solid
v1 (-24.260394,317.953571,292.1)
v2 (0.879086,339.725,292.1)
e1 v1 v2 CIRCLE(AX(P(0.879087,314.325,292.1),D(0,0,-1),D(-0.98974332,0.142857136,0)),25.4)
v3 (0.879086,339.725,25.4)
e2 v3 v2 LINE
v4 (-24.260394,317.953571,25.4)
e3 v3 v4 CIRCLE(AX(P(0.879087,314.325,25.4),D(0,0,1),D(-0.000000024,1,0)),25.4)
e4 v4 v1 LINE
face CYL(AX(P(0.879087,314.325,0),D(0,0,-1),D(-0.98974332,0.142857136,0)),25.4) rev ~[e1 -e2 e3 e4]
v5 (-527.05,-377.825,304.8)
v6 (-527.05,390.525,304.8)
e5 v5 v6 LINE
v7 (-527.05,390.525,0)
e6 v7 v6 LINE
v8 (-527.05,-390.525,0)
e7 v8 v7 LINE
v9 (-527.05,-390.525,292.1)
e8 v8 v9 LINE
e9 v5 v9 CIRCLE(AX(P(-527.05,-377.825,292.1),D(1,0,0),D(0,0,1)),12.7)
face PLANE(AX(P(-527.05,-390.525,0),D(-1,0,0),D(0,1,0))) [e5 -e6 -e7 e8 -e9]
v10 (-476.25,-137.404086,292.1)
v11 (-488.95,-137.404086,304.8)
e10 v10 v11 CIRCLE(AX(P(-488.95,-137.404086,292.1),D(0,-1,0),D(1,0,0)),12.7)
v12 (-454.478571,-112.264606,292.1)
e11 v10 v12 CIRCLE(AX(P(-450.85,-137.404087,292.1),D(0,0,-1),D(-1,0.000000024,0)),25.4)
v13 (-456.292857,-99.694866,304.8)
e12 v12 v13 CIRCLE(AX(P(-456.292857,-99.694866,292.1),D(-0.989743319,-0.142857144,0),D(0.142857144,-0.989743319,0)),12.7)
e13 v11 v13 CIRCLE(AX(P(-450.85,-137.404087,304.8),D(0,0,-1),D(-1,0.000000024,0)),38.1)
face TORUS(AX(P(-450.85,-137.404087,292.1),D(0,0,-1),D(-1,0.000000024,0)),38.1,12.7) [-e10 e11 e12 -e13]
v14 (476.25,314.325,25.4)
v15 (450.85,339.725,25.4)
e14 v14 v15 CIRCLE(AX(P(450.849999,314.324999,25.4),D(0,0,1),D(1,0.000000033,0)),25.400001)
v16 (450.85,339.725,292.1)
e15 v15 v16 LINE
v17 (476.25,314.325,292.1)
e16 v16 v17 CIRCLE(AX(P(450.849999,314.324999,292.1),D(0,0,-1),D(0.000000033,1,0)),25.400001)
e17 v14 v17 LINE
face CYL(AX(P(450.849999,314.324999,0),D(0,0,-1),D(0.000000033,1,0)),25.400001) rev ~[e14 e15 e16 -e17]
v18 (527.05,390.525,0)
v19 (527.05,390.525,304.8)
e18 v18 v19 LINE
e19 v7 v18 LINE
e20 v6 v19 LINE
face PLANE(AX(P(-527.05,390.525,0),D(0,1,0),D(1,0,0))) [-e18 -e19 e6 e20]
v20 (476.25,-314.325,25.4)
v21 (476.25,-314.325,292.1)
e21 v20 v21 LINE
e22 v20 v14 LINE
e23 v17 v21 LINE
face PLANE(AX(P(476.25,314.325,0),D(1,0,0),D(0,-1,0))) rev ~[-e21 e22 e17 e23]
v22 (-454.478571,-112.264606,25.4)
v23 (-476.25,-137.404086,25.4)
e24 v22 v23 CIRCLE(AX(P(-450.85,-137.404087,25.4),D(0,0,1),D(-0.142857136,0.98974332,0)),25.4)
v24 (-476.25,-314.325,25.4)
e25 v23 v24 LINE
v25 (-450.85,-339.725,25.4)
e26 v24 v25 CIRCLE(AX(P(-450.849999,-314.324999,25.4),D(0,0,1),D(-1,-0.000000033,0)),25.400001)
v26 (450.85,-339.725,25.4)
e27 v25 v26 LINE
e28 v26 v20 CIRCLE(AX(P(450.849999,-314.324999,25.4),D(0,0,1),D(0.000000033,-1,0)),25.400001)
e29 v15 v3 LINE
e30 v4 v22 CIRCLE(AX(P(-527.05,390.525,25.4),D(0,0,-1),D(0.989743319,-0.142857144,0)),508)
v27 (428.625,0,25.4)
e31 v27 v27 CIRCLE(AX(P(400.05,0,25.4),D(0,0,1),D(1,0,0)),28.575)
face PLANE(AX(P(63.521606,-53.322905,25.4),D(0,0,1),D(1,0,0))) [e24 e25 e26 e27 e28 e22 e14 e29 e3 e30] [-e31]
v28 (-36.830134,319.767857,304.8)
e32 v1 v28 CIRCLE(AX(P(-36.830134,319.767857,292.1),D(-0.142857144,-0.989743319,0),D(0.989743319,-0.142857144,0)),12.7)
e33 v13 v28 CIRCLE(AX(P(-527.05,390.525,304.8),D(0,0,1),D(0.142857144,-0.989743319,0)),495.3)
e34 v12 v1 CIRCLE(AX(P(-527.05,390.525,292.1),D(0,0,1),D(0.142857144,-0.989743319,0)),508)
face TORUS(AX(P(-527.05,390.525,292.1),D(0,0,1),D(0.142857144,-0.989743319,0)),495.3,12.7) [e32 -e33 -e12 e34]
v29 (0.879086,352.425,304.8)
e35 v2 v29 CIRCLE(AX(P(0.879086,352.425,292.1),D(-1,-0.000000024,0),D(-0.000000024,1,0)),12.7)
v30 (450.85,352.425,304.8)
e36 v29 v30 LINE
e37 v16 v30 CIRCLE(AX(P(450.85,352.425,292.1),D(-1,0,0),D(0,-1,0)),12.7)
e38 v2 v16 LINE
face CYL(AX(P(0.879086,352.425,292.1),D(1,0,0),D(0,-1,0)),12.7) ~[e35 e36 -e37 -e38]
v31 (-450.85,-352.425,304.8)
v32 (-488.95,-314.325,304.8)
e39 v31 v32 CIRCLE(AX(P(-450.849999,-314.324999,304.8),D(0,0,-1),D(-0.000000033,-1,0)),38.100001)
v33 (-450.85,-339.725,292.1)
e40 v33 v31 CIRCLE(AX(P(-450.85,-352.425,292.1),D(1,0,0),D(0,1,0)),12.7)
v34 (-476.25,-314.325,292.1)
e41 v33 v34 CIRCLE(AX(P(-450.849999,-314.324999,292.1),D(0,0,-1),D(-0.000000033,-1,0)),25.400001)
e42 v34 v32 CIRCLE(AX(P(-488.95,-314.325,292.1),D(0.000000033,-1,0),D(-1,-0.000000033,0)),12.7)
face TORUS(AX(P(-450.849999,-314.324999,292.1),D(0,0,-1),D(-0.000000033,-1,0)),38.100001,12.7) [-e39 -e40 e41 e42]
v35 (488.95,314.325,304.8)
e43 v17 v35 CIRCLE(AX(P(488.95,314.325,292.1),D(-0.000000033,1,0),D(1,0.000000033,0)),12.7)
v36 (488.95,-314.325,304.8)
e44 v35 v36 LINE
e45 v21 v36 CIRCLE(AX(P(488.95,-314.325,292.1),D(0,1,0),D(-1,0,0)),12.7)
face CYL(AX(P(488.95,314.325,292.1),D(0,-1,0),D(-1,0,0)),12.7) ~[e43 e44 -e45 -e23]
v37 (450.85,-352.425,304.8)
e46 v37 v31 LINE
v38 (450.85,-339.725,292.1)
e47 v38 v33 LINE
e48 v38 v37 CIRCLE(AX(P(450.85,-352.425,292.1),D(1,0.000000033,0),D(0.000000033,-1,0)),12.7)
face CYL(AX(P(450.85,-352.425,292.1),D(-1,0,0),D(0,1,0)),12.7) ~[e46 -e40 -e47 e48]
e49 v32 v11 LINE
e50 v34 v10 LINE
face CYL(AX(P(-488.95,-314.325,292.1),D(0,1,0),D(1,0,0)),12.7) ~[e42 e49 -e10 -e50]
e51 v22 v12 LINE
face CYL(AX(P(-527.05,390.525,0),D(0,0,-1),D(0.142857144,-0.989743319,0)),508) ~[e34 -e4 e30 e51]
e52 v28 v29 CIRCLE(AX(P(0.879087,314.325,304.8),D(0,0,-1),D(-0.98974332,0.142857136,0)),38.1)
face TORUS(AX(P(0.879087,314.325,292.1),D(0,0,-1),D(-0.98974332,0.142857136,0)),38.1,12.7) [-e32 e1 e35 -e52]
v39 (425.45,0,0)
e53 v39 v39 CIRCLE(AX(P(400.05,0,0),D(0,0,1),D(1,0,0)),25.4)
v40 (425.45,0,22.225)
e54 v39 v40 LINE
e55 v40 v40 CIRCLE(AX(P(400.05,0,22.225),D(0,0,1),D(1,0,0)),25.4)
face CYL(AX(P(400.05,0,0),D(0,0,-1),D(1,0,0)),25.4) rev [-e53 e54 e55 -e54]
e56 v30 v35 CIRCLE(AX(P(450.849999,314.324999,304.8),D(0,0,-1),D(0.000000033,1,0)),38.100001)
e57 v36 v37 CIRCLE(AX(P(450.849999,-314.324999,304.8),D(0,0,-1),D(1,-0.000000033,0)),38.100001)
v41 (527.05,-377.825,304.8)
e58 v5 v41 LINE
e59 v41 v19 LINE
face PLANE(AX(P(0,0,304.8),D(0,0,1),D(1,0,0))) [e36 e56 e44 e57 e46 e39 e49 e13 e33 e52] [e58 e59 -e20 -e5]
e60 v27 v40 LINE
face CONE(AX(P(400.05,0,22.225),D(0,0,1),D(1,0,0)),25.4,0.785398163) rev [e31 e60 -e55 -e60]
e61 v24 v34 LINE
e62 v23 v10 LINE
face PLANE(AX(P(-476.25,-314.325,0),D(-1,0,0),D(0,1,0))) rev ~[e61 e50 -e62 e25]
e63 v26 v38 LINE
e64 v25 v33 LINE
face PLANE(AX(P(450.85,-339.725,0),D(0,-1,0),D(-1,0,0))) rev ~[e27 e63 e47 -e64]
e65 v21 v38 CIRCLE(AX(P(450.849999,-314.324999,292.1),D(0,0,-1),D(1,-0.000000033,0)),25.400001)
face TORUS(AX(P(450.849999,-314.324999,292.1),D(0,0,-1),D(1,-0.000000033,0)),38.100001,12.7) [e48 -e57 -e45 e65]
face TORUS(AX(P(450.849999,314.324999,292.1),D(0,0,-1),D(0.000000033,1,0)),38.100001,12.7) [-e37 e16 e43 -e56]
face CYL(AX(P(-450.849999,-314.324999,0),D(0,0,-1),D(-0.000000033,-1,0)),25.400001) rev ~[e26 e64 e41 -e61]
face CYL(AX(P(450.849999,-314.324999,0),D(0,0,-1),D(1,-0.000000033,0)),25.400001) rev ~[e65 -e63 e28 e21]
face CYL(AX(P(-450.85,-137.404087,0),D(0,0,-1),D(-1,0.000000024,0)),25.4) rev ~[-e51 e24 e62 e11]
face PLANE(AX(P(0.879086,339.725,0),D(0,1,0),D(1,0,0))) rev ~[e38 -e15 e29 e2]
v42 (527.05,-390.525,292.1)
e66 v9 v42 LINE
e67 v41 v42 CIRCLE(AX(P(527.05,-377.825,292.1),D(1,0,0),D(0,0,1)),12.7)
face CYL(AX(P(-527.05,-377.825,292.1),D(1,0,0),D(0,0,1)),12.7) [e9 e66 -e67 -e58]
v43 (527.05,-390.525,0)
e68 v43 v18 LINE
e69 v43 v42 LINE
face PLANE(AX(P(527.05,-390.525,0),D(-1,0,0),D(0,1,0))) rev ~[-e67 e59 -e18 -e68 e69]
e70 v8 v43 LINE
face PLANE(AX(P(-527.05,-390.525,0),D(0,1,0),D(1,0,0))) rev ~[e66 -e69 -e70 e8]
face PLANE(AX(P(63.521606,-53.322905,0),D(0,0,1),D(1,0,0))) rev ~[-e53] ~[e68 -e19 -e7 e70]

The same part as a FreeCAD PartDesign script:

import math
import FreeCAD as App
import Part
import Sketcher

V = App.Vector
Q = App.Units.Quantity


def edges_at(feature, points):
    """Names of the edges that pass closest to the given points."""
    edges = feature.Shape.Edges
    near = lambda p: min(range(len(edges)), key=lambda i: edges[i].distToShape(Part.Vertex(*p))[0])
    return sorted({f"Edge{near(p) + 1}" for p in points})

doc = App.newDocument("Part")
body = doc.addObject("PartDesign::Body", "Body")

# Sketch on XY plane
sketch1 = body.newObject("Sketcher::SketchObject", "Sketch")
sketch1.AttachmentSupport = (doc.getObject("XY_Plane"), [""])
sketch1.MapMode = "FlatFace"
sketch1.addGeometry(Part.LineSegment(V(-527.05, 390.525, 0), V(-527.05, -390.525, 0)), False)
sketch1.addGeometry(Part.LineSegment(V(-527.05, -390.525, 0), V(527.05, -390.525, 0)), False)
sketch1.addGeometry(Part.LineSegment(V(527.05, -390.525, 0), V(527.05, 390.525, 0)), False)
sketch1.addGeometry(Part.LineSegment(V(527.05, 390.525, 0), V(-527.05, 390.525, 0)), False)
sketch1.addGeometry(Part.ArcOfCircle(Part.Circle(V(-527.05, 390.525, 0), V(0, 0, 1), 508), math.radians(-81.786789), math.radians(-8.213211)), False)
sketch1.addGeometry(Part.ArcOfCircle(Part.Circle(V(0.879087, 314.325, 0), V(0, 0, 1), 25.4), math.radians(90.000001), math.radians(171.78679)), False)
sketch1.addGeometry(Part.LineSegment(V(0.879086, 339.725, 0), V(450.85, 339.725, 0)), False)
sketch1.addGeometry(Part.ArcOfCircle(Part.Circle(V(450.849999, 314.324999, 0), V(0, 0, 1), 25.400001), math.radians(0.000002), math.radians(89.999998)), False)
sketch1.addGeometry(Part.LineSegment(V(476.25, 314.325, 0), V(476.25, -314.325, 0)), False)
sketch1.addGeometry(Part.ArcOfCircle(Part.Circle(V(450.849999, -314.324999, 0), V(0, 0, 1), 25.400001), math.radians(-89.999998), math.radians(-0.000002)), False)
sketch1.addGeometry(Part.LineSegment(V(450.85, -339.725, 0), V(-450.85, -339.725, 0)), False)
sketch1.addGeometry(Part.ArcOfCircle(Part.Circle(V(-450.849999, -314.324999, 0), V(0, 0, 1), 25.400001), math.radians(-179.999998), math.radians(-90.000002)), False)
sketch1.addGeometry(Part.LineSegment(V(-476.25, -314.325, 0), V(-476.25, -137.404086, 0)), False)
sketch1.addGeometry(Part.ArcOfCircle(Part.Circle(V(-450.85, -137.404087, 0), V(0, 0, 1), 25.4), math.radians(98.21321), math.radians(179.999999)), False)
sketch1.addConstraint(Sketcher.Constraint("Coincident", 0, 2, 1, 1))
sketch1.addConstraint(Sketcher.Constraint("Coincident", 1, 2, 2, 1))
sketch1.addConstraint(Sketcher.Constraint("Coincident", 2, 2, 3, 1))
sketch1.addConstraint(Sketcher.Constraint("Coincident", 3, 2, 0, 1))
sketch1.addConstraint(Sketcher.Constraint("Tangent", 4, 2, 5, 2))
sketch1.addConstraint(Sketcher.Constraint("Tangent", 5, 1, 6, 1))
sketch1.addConstraint(Sketcher.Constraint("Tangent", 6, 2, 7, 2))
sketch1.addConstraint(Sketcher.Constraint("Tangent", 7, 1, 8, 1))
sketch1.addConstraint(Sketcher.Constraint("Tangent", 8, 2, 9, 2))
sketch1.addConstraint(Sketcher.Constraint("Tangent", 9, 1, 10, 1))
sketch1.addConstraint(Sketcher.Constraint("Tangent", 10, 2, 11, 2))
sketch1.addConstraint(Sketcher.Constraint("Tangent", 11, 1, 12, 1))
sketch1.addConstraint(Sketcher.Constraint("Tangent", 12, 2, 13, 2))
sketch1.addConstraint(Sketcher.Constraint("Tangent", 13, 1, 4, 1))
sketch1.addConstraint(Sketcher.Constraint("Vertical", 0))
sketch1.addConstraint(Sketcher.Constraint("Horizontal", 1))
sketch1.addConstraint(Sketcher.Constraint("Vertical", 2))
sketch1.addConstraint(Sketcher.Constraint("Horizontal", 3))
sketch1.addConstraint(Sketcher.Constraint("Horizontal", 6))
sketch1.addConstraint(Sketcher.Constraint("Vertical", 8))
sketch1.addConstraint(Sketcher.Constraint("Horizontal", 10))
sketch1.addConstraint(Sketcher.Constraint("Vertical", 12))
sketch1.addConstraint(Sketcher.Constraint("Coincident", 3, 2, 4, 3))
sketch1.addConstraint(Sketcher.Constraint("Equal", 5, 7))
sketch1.addConstraint(Sketcher.Constraint("Equal", 7, 9))
sketch1.addConstraint(Sketcher.Constraint("Equal", 9, 11))
sketch1.addConstraint(Sketcher.Constraint("Equal", 11, 13))
sketch1.addConstraint(Sketcher.Constraint("Symmetric", 7, 3, 11, 3, -1, 1))
sketch1.addConstraint(Sketcher.Constraint("Symmetric", 0, 2, 2, 2, -1, 1))
sketch1.addConstraint(Sketcher.Constraint("Radius", 4, Q("20 in")))
sketch1.addConstraint(Sketcher.Constraint("Radius", 5, Q("1 in")))
sketch1.addConstraint(Sketcher.Constraint("DistanceX", 1, 1, 1, 2, Q("41.5 in")))
sketch1.addConstraint(Sketcher.Constraint("DistanceX", 10, 2, 10, 1, Q("35.5 in")))
sketch1.addConstraint(Sketcher.Constraint("DistanceY", 5, 3, 4, 3, Q("3 in")))
sketch1.addConstraint(Sketcher.Constraint("DistanceY", 0, 2, 0, 1, Q("30.75 in")))
pad1 = body.newObject("PartDesign::Pad", "Pad")
pad1.Profile = sketch1
pad1.Length = Q("12 in")

# Sketch on XY plane
sketch2 = body.newObject("Sketcher::SketchObject", "Sketch001")
sketch2.AttachmentSupport = (doc.getObject("XY_Plane"), [""])
sketch2.MapMode = "FlatFace"
sketch2.addGeometry(Part.LineSegment(V(450.85, 339.725, 0), V(0.879086, 339.725, 0)), False)
sketch2.addGeometry(Part.ArcOfCircle(Part.Circle(V(0.879087, 314.325, 0), V(0, 0, 1), 25.4), math.radians(90.000001), math.radians(171.78679)), False)
sketch2.addGeometry(Part.ArcOfCircle(Part.Circle(V(-527.05, 390.525, 0), V(0, 0, 1), 508), math.radians(-81.786789), math.radians(-8.213211)), False)
sketch2.addGeometry(Part.ArcOfCircle(Part.Circle(V(-450.85, -137.404087, 0), V(0, 0, 1), 25.4), math.radians(98.21321), math.radians(179.999999)), False)
sketch2.addGeometry(Part.LineSegment(V(-476.25, -137.404086, 0), V(-476.25, -314.325, 0)), False)
sketch2.addGeometry(Part.ArcOfCircle(Part.Circle(V(-450.849999, -314.324999, 0), V(0, 0, 1), 25.400001), math.radians(-179.999998), math.radians(-90.000002)), False)
sketch2.addGeometry(Part.LineSegment(V(-450.85, -339.725, 0), V(450.85, -339.725, 0)), False)
sketch2.addGeometry(Part.ArcOfCircle(Part.Circle(V(450.849999, -314.324999, 0), V(0, 0, 1), 25.400001), math.radians(-89.999998), math.radians(-0.000002)), False)
sketch2.addGeometry(Part.LineSegment(V(476.25, -314.325, 0), V(476.25, 314.325, 0)), False)
sketch2.addGeometry(Part.ArcOfCircle(Part.Circle(V(450.849999, 314.324999, 0), V(0, 0, 1), 25.400001), math.radians(0.000002), math.radians(89.999998)), False)
sketch2.addGeometry(Part.Circle(V(400.05, 0, 0), V(0, 0, 1), 25.4), False)
sketch2.addConstraint(Sketcher.Constraint("Tangent", 0, 2, 1, 1))
sketch2.addConstraint(Sketcher.Constraint("Tangent", 1, 2, 2, 2))
sketch2.addConstraint(Sketcher.Constraint("Tangent", 2, 1, 3, 1))
sketch2.addConstraint(Sketcher.Constraint("Tangent", 3, 2, 4, 1))
sketch2.addConstraint(Sketcher.Constraint("Tangent", 4, 2, 5, 1))
sketch2.addConstraint(Sketcher.Constraint("Tangent", 5, 2, 6, 1))
sketch2.addConstraint(Sketcher.Constraint("Tangent", 6, 2, 7, 1))
sketch2.addConstraint(Sketcher.Constraint("Tangent", 7, 2, 8, 1))
sketch2.addConstraint(Sketcher.Constraint("Tangent", 8, 2, 9, 1))
sketch2.addConstraint(Sketcher.Constraint("Tangent", 9, 2, 0, 1))
sketch2.addConstraint(Sketcher.Constraint("Horizontal", 0))
sketch2.addConstraint(Sketcher.Constraint("Vertical", 4))
sketch2.addConstraint(Sketcher.Constraint("Horizontal", 6))
sketch2.addConstraint(Sketcher.Constraint("Vertical", 8))
sketch2.addConstraint(Sketcher.Constraint("Equal", 1, 3))
sketch2.addConstraint(Sketcher.Constraint("Equal", 3, 5))
sketch2.addConstraint(Sketcher.Constraint("Equal", 5, 7))
sketch2.addConstraint(Sketcher.Constraint("Equal", 7, 9))
sketch2.addConstraint(Sketcher.Constraint("Equal", 9, 10))
sketch2.addConstraint(Sketcher.Constraint("Symmetric", 5, 3, 9, 3, -1, 1))
sketch2.addConstraint(Sketcher.Constraint("PointOnObject", 10, 3, -1))
sketch2.addConstraint(Sketcher.Constraint("Diameter", 10, Q("2 in")))
sketch2.addConstraint(Sketcher.Constraint("Radius", 2, Q("20 in")))
sketch2.addConstraint(Sketcher.Constraint("DistanceX", 6, 1, 6, 2, Q("35.5 in")))
sketch2.addConstraint(Sketcher.Constraint("DistanceY", 1, 3, 2, 3, Q("3 in")))
sketch2.addConstraint(Sketcher.Constraint("DistanceX", 2, 3, 3, 3, Q("3 in")))
sketch2.addConstraint(Sketcher.Constraint("DistanceX", 10, 3, 7, 3, Q("2 in")))
sketch2.addConstraint(Sketcher.Constraint("DistanceY", 8, 1, 8, 2, Q("24.75 in")))
pad2 = body.newObject("PartDesign::Pad", "Pad001")
pad2.Profile = sketch2
pad2.Length = Q("1 in")
doc.recompute()

fillet = body.newObject("PartDesign::Fillet", "Fillet")
fillet.Base = (pad2, edges_at(pad2, [(-167.84, 31.315, 304.8)]))
fillet.Radius = Q("0.5 in")
doc.recompute()

chamfer = body.newObject("PartDesign::Chamfer", "Chamfer")
chamfer.Base = (fillet, edges_at(fillet, [(374.65, 0, 25.4)]))
chamfer.Size = Q("0.125 in")
doc.recompute()

fillet2 = body.newObject("PartDesign::Fillet", "Fillet001")
fillet2.Base = (chamfer, edges_at(chamfer, [(0, -390.525, 304.8)]))
fillet2.Radius = Q("0.5 in")

doc.recompute()
